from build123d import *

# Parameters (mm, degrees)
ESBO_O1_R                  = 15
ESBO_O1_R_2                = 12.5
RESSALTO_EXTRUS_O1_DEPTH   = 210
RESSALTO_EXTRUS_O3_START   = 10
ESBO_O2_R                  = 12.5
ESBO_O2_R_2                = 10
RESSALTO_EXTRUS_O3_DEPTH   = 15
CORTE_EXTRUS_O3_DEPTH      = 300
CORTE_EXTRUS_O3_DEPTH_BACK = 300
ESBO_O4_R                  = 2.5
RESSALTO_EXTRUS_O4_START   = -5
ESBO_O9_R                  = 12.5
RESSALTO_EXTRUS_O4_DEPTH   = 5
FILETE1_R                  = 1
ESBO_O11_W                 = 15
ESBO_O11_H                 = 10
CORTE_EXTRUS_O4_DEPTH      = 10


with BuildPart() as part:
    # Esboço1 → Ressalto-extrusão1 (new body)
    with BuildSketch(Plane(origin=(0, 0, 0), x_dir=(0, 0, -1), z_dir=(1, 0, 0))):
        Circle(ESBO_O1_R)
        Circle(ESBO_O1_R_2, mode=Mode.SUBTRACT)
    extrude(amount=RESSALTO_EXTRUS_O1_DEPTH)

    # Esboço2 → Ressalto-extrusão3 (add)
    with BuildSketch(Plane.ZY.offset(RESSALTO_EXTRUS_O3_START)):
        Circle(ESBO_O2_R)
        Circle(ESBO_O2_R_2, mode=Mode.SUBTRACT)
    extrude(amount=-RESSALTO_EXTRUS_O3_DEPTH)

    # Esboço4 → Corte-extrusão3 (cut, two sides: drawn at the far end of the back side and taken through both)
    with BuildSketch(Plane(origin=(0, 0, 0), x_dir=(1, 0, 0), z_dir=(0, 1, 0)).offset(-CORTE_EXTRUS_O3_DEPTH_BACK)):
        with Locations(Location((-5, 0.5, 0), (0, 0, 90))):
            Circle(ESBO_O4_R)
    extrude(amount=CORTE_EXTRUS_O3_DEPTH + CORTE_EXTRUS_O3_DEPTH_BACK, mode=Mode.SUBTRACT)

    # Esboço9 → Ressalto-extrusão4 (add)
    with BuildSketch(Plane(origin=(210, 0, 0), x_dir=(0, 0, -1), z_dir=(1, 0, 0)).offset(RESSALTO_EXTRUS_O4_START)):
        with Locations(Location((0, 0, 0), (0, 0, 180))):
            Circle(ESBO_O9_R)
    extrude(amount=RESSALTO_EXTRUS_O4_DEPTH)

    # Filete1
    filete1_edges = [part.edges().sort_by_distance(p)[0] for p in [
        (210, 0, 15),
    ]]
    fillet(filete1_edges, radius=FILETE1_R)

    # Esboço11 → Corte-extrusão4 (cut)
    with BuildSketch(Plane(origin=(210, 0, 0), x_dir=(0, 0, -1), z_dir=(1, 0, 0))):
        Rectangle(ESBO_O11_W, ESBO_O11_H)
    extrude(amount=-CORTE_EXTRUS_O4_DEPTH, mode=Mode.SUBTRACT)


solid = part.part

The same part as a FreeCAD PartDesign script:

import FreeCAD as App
import Part
import Sketcher

V = App.Vector


def edges_at(feature, points):
    """Names of the edges that pass closest to the given points."""
    edges = feature.Shape.Edges
    near = lambda p: min(range(len(edges)), key=lambda i: edges[i].distToShape(Part.Vertex(*p))[0])
    return sorted({f"Edge{near(p) + 1}" for p in points})

doc = App.newDocument("Part")
params = doc.addObject("Spreadsheet::Sheet", "Params")
for row, (alias, value) in enumerate([
    ("sketch1_diameter", "30 mm"),
    ("sketch1_diameter2", "25 mm"),
    ("pad1_length", "210 mm"),
    ("sketch2_diameter", "25 mm"),
    ("sketch2_diameter2", "20 mm"),
    ("pad2_length", "15 mm"),
    ("sketch3_diameter", "5 mm"),
    ("sketch4_diameter", "25 mm"),
    ("pad3_length", "5 mm"),
    ("fillet_radius", "1 mm"),
    ("sketch5_width", "10 mm"),
    ("sketch5_height", "15 mm"),
    ("pocket2_length", "10 mm"),
], start=1):
    params.set(f"A{row}", alias)
    params.set(f"B{row}", "=" + value)
    params.setAlias(f"B{row}", alias)

body = doc.addObject("PartDesign::Body", "Body")

# Sketch on YZ plane
sketch1 = body.newObject("Sketcher::SketchObject", "Sketch")
sketch1.AttachmentSupport = (doc.getObject("YZ_Plane"), [""])
sketch1.MapMode = "FlatFace"
sketch1.addGeometry(Part.Circle(V(0, 0, 0), V(0, 0, 1), 15), False)
sketch1.addGeometry(Part.Circle(V(0, 0, 0), V(0, 0, 1), 12), False)
sketch1.addConstraint(Sketcher.Constraint("Coincident", 0, 3, -1, 1))
sketch1.addConstraint(Sketcher.Constraint("Coincident", 1, 3, -1, 1))
sketch1.addConstraint(Sketcher.Constraint("Diameter", 0, 30.0))
sketch1.addConstraint(Sketcher.Constraint("Diameter", 1, 25.0))
sketch1.setExpression("Constraints[2]", "Params.sketch1_diameter")
sketch1.setExpression("Constraints[3]", "Params.sketch1_diameter2")
pad1 = body.newObject("PartDesign::Pad", "Pad")
pad1.Profile = sketch1
pad1.setExpression("Length", "Params.pad1_length")

# Sketch on YZ plane
sketch2 = body.newObject("Sketcher::SketchObject", "Sketch001")
sketch2.AttachmentSupport = (doc.getObject("YZ_Plane"), [""])
sketch2.MapMode = "FlatFace"
sketch2.AttachmentOffset = App.Placement(V(0, 0, -10), App.Rotation())
sketch2.addGeometry(Part.Circle(V(0, 0, 0), V(0, 0, 1), 12), False)
sketch2.addGeometry(Part.Circle(V(0, 0, 0), V(0, 0, 1), 10), False)
sketch2.addConstraint(Sketcher.Constraint("Coincident", 0, 3, -1, 1))
sketch2.addConstraint(Sketcher.Constraint("Coincident", 1, 3, -1, 1))
sketch2.addConstraint(Sketcher.Constraint("Diameter", 0, 25.0))
sketch2.addConstraint(Sketcher.Constraint("Diameter", 1, 20.0))
sketch2.setExpression("Constraints[2]", "Params.sketch2_diameter")
sketch2.setExpression("Constraints[3]", "Params.sketch2_diameter2")
pad2 = body.newObject("PartDesign::Pad", "Pad001")
pad2.Profile = sketch2
pad2.setExpression("Length", "Params.pad2_length")

# Sketch on XZ plane
sketch3 = body.newObject("Sketcher::SketchObject", "Sketch002")
sketch3.AttachmentSupport = (doc.getObject("XZ_Plane"), [""])
sketch3.MapMode = "FlatFace"
sketch3.addGeometry(Part.Circle(V(-5, -0.5, 0), V(0, 0, 1), 2.5), False)
sketch3.addConstraint(Sketcher.Constraint("Diameter", 0, 5.0))
sketch3.addConstraint(Sketcher.Constraint("DistanceX", 0, 3, -1, 1, 5.0))
sketch3.addConstraint(Sketcher.Constraint("DistanceY", 0, 3, -1, 1, 0.5))
sketch3.setExpression("Constraints[0]", "Params.sketch3_diameter")
pocket1 = body.newObject("PartDesign::Pocket", "Pocket")
pocket1.Profile = sketch3
pocket1.Type = "ThroughAll"
pocket1.Midplane = True

# Sketch on YZ plane
sketch4 = body.newObject("Sketcher::SketchObject", "Sketch003")
sketch4.AttachmentSupport = (doc.getObject("YZ_Plane"), [""])
sketch4.MapMode = "FlatFace"
sketch4.AttachmentOffset = App.Placement(V(0, 0, 205), App.Rotation())
sketch4.addGeometry(Part.Circle(V(0, 0, 0), V(0, 0, 1), 12), False)
sketch4.addConstraint(Sketcher.Constraint("Coincident", 0, 3, -1, 1))
sketch4.addConstraint(Sketcher.Constraint("Diameter", 0, 25.0))
sketch4.setExpression("Constraints[1]", "Params.sketch4_diameter")
pad3 = body.newObject("PartDesign::Pad", "Pad002")
pad3.Profile = sketch4
pad3.setExpression("Length", "Params.pad3_length")
doc.recompute()

fillet = body.newObject("PartDesign::Fillet", "Fillet")
fillet.Base = (pad3, edges_at(pad3, [(210, 0, 15)]))
fillet.setExpression("Radius", "Params.fillet_radius")

# Sketch on YZ plane
sketch5 = body.newObject("Sketcher::SketchObject", "Sketch004")
sketch5.AttachmentSupport = (doc.getObject("YZ_Plane"), [""])
sketch5.MapMode = "FlatFace"
sketch5.AttachmentOffset = App.Placement(V(0, 0, 210), App.Rotation())
sketch5.addGeometry(Part.LineSegment(V(5, 8, 0), V(-5, 8, 0)), False)
sketch5.addGeometry(Part.LineSegment(V(-5, 8, 0), V(-5, -8, 0)), False)
sketch5.addGeometry(Part.LineSegment(V(-5, -8, 0), V(5, -8, 0)), False)
sketch5.addGeometry(Part.LineSegment(V(5, -8, 0), V(5, 8, 0)), False)
sketch5.addConstraint(Sketcher.Constraint("Coincident", 0, 2, 1, 1))
sketch5.addConstraint(Sketcher.Constraint("Coincident", 1, 2, 2, 1))
sketch5.addConstraint(Sketcher.Constraint("Coincident", 2, 2, 3, 1))
sketch5.addConstraint(Sketcher.Constraint("Coincident", 3, 2, 0, 1))
sketch5.addConstraint(Sketcher.Constraint("Horizontal", 0))
sketch5.addConstraint(Sketcher.Constraint("Vertical", 1))
sketch5.addConstraint(Sketcher.Constraint("Horizontal", 2))
sketch5.addConstraint(Sketcher.Constraint("Vertical", 3))
sketch5.addConstraint(Sketcher.Constraint("Symmetric", 0, 2, 2, 2, -1, 1))
sketch5.addConstraint(Sketcher.Constraint("DistanceX", 0, 2, 0, 1, 10.0))
sketch5.addConstraint(Sketcher.Constraint("DistanceY", 1, 2, 1, 1, 15.0))
sketch5.setExpression("Constraints[9]", "Params.sketch5_width")
sketch5.setExpression("Constraints[10]", "Params.sketch5_height")
pocket2 = body.newObject("PartDesign::Pocket", "Pocket001")
pocket2.Profile = sketch5
pocket2.setExpression("Length", "Params.pocket2_length")

doc.recompute()
